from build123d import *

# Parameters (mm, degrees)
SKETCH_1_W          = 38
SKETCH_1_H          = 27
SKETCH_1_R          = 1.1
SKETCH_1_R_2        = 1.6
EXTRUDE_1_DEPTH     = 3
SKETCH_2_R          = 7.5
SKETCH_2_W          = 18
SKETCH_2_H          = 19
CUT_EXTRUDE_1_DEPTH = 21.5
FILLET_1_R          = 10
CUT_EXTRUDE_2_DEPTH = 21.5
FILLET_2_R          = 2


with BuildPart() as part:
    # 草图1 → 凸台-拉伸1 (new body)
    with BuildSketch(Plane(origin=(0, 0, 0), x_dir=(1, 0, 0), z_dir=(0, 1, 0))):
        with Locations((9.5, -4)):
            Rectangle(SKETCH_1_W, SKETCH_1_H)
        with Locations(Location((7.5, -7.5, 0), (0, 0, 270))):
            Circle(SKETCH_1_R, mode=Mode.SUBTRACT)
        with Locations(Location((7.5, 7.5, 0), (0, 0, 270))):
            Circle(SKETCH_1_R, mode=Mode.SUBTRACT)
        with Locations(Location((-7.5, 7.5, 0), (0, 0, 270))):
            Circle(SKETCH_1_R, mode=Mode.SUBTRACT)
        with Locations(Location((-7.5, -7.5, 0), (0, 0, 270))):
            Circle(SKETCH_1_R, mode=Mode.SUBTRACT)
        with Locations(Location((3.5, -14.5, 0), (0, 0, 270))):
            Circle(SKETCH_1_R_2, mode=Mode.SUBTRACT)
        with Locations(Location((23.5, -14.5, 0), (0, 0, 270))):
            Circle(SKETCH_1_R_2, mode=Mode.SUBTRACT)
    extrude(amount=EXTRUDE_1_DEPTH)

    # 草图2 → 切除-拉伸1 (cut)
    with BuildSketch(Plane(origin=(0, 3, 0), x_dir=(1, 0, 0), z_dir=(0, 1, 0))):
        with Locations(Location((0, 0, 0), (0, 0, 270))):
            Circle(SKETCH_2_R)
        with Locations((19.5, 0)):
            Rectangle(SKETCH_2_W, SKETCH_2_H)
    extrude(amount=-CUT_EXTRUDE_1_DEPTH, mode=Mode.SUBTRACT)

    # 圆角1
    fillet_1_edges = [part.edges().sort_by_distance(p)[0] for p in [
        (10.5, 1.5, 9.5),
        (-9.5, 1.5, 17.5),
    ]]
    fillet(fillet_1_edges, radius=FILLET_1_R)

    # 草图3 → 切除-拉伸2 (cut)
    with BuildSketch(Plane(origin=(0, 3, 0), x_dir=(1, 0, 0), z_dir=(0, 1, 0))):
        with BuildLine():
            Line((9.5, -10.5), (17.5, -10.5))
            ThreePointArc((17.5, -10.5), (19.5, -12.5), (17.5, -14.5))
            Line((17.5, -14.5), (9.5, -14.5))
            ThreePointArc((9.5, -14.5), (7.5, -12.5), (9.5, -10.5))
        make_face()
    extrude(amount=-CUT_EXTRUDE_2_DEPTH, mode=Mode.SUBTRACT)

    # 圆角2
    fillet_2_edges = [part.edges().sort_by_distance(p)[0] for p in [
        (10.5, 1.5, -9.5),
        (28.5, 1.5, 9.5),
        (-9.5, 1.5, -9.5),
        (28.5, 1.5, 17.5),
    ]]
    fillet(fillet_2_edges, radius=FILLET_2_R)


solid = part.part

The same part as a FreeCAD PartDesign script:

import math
import FreeCAD as App
import Part
import Sketcher
Q = App.Units.Quantity


def edges_at(feature, points):
    """Names of the edges that pass closest to the given points."""
    edges = feature.Shape.Edges
    near = lambda p: min(range(len(edges)), key=lambda i: edges[i].distToShape(Part.Vertex(*p))[0])
    return sorted({f"Edge{near(p) + 1}" for p in points})


def add_polygon(sketch, points):
    """Adds a closed chain of lines whose ends are joined by coincident constraints."""
    first, n = sketch.GeometryCount, len(points)
    for a, b in zip(points, points[1:] + points[:1]):
        sketch.addGeometry(Part.LineSegment(App.Vector(*a, 0), App.Vector(*b, 0)), False)
    for i in range(n):
        sketch.addConstraint(Sketcher.Constraint("Coincident", first + i, 2, first + (i + 1) % n, 1))

doc = App.newDocument("Part")
body = doc.addObject("PartDesign::Body", "Body")

# Sketch on XZ plane
sketch1 = body.newObject("Sketcher::SketchObject", "Sketch")
sketch1.AttachmentSupport = (doc.getObject("XZ_Plane"), [""])
sketch1.MapMode = "FlatFace"
add_polygon(sketch1, [(-9.5, -9.5), (-9.5, 17.5), (28.5, 17.5), (28.5, -9.5)])  # lines 0-3
sketch1.addGeometry(Part.Circle(App.Vector(3.5, 14.5, 0), App.Vector(0, 0, 1), 1.6), False)  # 4
sketch1.addGeometry(Part.Circle(App.Vector(-7.5, 7.5, 0), App.Vector(0, 0, 1), 1.1), False)  # 5
sketch1.addGeometry(Part.Circle(App.Vector(7.5, 7.5, 0), App.Vector(0, 0, 1), 1.1), False)  # 6
sketch1.addGeometry(Part.Circle(App.Vector(23.5, 14.5, 0), App.Vector(0, 0, 1), 1.6), False)  # 7
sketch1.addGeometry(Part.Circle(App.Vector(-7.5, -7.5, 0), App.Vector(0, 0, 1), 1.1), False)  # 8
sketch1.addGeometry(Part.Circle(App.Vector(7.5, -7.5, 0), App.Vector(0, 0, 1), 1.1), False)  # 9
sketch1.addConstraint([
    Sketcher.Constraint("Vertical", 0),
    Sketcher.Constraint("Horizontal", 1),
    Sketcher.Constraint("Vertical", 2),
    Sketcher.Constraint("Horizontal", 3),
    Sketcher.Constraint("Equal", 5, 6),
    Sketcher.Constraint("Equal", 4, 7),
    Sketcher.Constraint("Equal", 6, 8),
    Sketcher.Constraint("Equal", 8, 9),
    Sketcher.Constraint("Symmetric", 6, 3, 8, 3, -1, 1),
    Sketcher.Constraint("Symmetric", 5, 3, 9, 3, -1, 1),
    Sketcher.Constraint("Symmetric", 5, 3, 6, 3, -2),
    Sketcher.Constraint("Horizontal", 4, 3, 7, 3),
    Sketcher.Constraint("Diameter", 4, Q("3.2 mm")),
    Sketcher.Constraint("Diameter", 5, Q("2.2 mm")),
    Sketcher.Constraint("DistanceX", 1, 1, 1, 2, Q("38 mm")),
    Sketcher.Constraint("DistanceY", 0, 1, 0, 2, Q("27 mm")),
    Sketcher.Constraint("DistanceX", 5, 3, 4, 3, Q("11 mm")),
    Sketcher.Constraint("DistanceY", 5, 3, 4, 3, Q("7 mm")),
    Sketcher.Constraint("DistanceX", 4, 3, 6, 3, Q("4 mm")),
    Sketcher.Constraint("DistanceX", 6, 3, 7, 3, Q("16 mm")),
    Sketcher.Constraint("DistanceY", 8, 3, 5, 3, Q("15 mm")),
    Sketcher.Constraint("DistanceX", 0, 2, 5, 3, Q("2 mm")),
    Sketcher.Constraint("DistanceY", 5, 3, 0, 2, Q("10 mm")),
])
pad1 = body.newObject("PartDesign::Pad", "Pad")
pad1.Profile = sketch1
pad1.Length = 3
pad1.Reversed = True

# Sketch on XZ plane
sketch2 = body.newObject("Sketcher::SketchObject", "Sketch001")
sketch2.AttachmentSupport = (doc.getObject("XZ_Plane"), [""])
sketch2.MapMode = "FlatFace"
sketch2.AttachmentOffset = App.Placement(App.Vector(0, 0, -3), App.Rotation())
sketch2.addGeometry(Part.Circle(App.Vector(0, 0, 0), App.Vector(0, 0, 1), 7.5), False)  # 0
add_polygon(sketch2, [(10.5, -9.5), (10.5, 9.5), (28.5, 9.5), (28.5, -9.5)])  # lines 1-4
sketch2.addConstraint([
    Sketcher.Constraint("Vertical", 1),
    Sketcher.Constraint("Horizontal", 2),
    Sketcher.Constraint("Vertical", 3),
    Sketcher.Constraint("Horizontal", 4),
    Sketcher.Constraint("Coincident", 0, 3, -1, 1),
    Sketcher.Constraint("Diameter", 0, Q("15 mm")),
    Sketcher.Constraint("DistanceX", 2, 1, 2, 2, Q("18 mm")),
    Sketcher.Constraint("DistanceY", 1, 1, 1, 2, Q("19 mm")),
    Sketcher.Constraint("DistanceX", -1, 1, 1, 2, Q("10.5 mm")),
    Sketcher.Constraint("DistanceY", -1, 1, 1, 2, Q("9.5 mm")),
])
pocket1 = body.newObject("PartDesign::Pocket", "Pocket")
pocket1.Profile = sketch2
pocket1.Length = 21.5
pocket1.Reversed = True
doc.recompute()

fillet = body.newObject("PartDesign::Fillet", "Fillet")
fillet.Base = (pocket1, edges_at(pocket1, [(10.5, 1.5, 9.5), (-9.5, 1.5, 17.5)]))
fillet.Radius = 10

# Sketch on XZ plane
sketch3 = body.newObject("Sketcher::SketchObject", "Sketch002")
sketch3.AttachmentSupport = (doc.getObject("XZ_Plane"), [""])
sketch3.MapMode = "FlatFace"
sketch3.AttachmentOffset = App.Placement(App.Vector(0, 0, -3), App.Rotation())
sketch3.addGeometry([
    Part.LineSegment(App.Vector(17.5, 10.5, 0), App.Vector(9.5, 10.5, 0)),
    Part.ArcOfCircle(Part.Circle(App.Vector(9.5, 12.5, 0), App.Vector(0, 0, 1), 2), math.radians(90), math.radians(270)),
    Part.LineSegment(App.Vector(9.5, 14.5, 0), App.Vector(17.5, 14.5, 0)),
    Part.ArcOfCircle(Part.Circle(App.Vector(17.5, 12.5, 0), App.Vector(0, 0, 1), 2), math.radians(-90), math.radians(90)),
], False)
sketch3.addConstraint([
    Sketcher.Constraint("Tangent", 0, 2, 1, 2),
    Sketcher.Constraint("Tangent", 1, 1, 2, 1),
    Sketcher.Constraint("Tangent", 2, 2, 3, 2),
    Sketcher.Constraint("Tangent", 3, 1, 0, 1),
    Sketcher.Constraint("Horizontal", 0),
    Sketcher.Constraint("Horizontal", 2),
    Sketcher.Constraint("Radius", 1, Q("2 mm")),
    Sketcher.Constraint("DistanceX", 0, 2, 0, 1, Q("8 mm")),
    Sketcher.Constraint("DistanceX", -1, 1, 1, 3, Q("9.5 mm")),
    Sketcher.Constraint("DistanceY", -1, 1, 1, 3, Q("12.5 mm")),
])
pocket2 = body.newObject("PartDesign::Pocket", "Pocket001")
pocket2.Profile = sketch3
pocket2.Length = 21.5
pocket2.Reversed = True
doc.recompute()

fillet2 = body.newObject("PartDesign::Fillet", "Fillet001")
fillet2.Base = (pocket2, edges_at(pocket2, [
    (10.5, 1.5, -9.5),
    (28.5, 1.5, 9.5),
    (-9.5, 1.5, -9.5),
    (28.5, 1.5, 17.5),
]))
fillet2.Radius = 2

doc.recompute()
